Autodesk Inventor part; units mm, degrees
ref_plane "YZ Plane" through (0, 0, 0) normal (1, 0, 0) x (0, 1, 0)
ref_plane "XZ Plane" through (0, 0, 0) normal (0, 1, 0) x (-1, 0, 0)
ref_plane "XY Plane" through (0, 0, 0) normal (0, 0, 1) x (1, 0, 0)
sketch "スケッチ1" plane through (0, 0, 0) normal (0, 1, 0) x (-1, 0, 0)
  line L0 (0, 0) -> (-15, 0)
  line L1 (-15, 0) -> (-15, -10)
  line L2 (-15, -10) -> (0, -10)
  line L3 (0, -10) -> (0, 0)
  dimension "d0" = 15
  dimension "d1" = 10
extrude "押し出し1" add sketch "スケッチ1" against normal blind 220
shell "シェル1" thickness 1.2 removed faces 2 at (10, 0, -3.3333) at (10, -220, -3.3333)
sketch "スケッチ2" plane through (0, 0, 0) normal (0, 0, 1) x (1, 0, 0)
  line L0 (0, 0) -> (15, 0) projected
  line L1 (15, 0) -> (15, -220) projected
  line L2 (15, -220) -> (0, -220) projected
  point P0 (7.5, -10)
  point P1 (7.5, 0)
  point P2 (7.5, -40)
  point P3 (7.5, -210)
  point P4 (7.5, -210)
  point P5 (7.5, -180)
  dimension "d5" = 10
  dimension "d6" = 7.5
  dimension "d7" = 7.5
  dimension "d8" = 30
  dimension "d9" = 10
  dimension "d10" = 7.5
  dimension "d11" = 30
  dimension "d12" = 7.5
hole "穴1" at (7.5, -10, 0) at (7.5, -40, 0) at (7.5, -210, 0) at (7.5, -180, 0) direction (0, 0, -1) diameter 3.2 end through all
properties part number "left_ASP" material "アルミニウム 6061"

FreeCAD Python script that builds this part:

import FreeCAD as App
import Part
import Sketcher
from FreeCAD import Vector
Q = App.Units.Quantity


def faces_at(feature, points):
    """Names of the faces that lie closest to the given points."""
    faces = feature.Shape.Faces
    near = lambda p: min(range(len(faces)), key=lambda i: faces[i].distToShape(Part.Vertex(*p))[0])
    return sorted({f"Face{near(p) + 1}" for p in points})


def add_polygon(sketch, points):
    """Adds a closed chain of lines whose ends are joined by coincident constraints."""
    first, n = sketch.GeometryCount, len(points)
    for a, b in zip(points, points[1:] + points[:1]):
        sketch.addGeometry(Part.LineSegment(App.Vector(*a, 0), App.Vector(*b, 0)), False)
    for i in range(n):
        sketch.addConstraint(Sketcher.Constraint("Coincident", first + i, 2, first + (i + 1) % n, 1))

doc = App.newDocument("Part")
body = doc.addObject("PartDesign::Body", "Body")

sketch1 = body.newObject("Sketcher::SketchObject", "Sketch")
sketch1.AttachmentSupport = (doc.getObject("XZ_Plane"), [""])
sketch1.MapMode = "FlatFace"
add_polygon(sketch1, [(0, -10), (0, 0), (15, 0), (15, -10)])
sketch1.addConstraint(Sketcher.Constraint("Vertical", 0))
sketch1.addConstraint(Sketcher.Constraint("Horizontal", 1))
sketch1.addConstraint(Sketcher.Constraint("Vertical", 2))
sketch1.addConstraint(Sketcher.Constraint("Horizontal", 3))
sketch1.addConstraint(Sketcher.Constraint("Coincident", 0, 2, -1, 1))
sketch1.addConstraint(Sketcher.Constraint("DistanceX", 1, 1, 1, 2, Q("15 mm")))
sketch1.addConstraint(Sketcher.Constraint("DistanceY", 0, 1, 0, 2, Q("10 mm")))
pad1 = body.newObject("PartDesign::Pad", "Pad")
pad1.Profile = sketch1
pad1.Length = 220
doc.recompute()

thickness = body.newObject("PartDesign::Thickness", "Thickness")
thickness.Base = (pad1, faces_at(pad1, [(10, 0, -3.333), (10, -220, -3.333)]))
thickness.Value = 1.2
thickness.Reversed = True
thickness.Join = "Intersection"

sketch2 = body.newObject("Sketcher::SketchObject", "Sketch001")
sketch2.AttachmentSupport = (doc.getObject("XY_Plane"), [""])
sketch2.MapMode = "FlatFace"
sketch2.addGeometry(Part.Circle(Vector(7.5, -10, 0), Vector(0, 0, 1), 1.6), False)
sketch2.addGeometry(Part.Circle(Vector(7.5, -40, 0), Vector(0, 0, 1), 1.6), False)
sketch2.addGeometry(Part.Circle(Vector(7.5, -210, 0), Vector(0, 0, 1), 1.6), False)
sketch2.addGeometry(Part.Circle(Vector(7.5, -180, 0), Vector(0, 0, 1), 1.6), False)
sketch2.addConstraint(Sketcher.Constraint("Equal", 0, 1))
sketch2.addConstraint(Sketcher.Constraint("Equal", 1, 2))
sketch2.addConstraint(Sketcher.Constraint("Equal", 2, 3))
sketch2.addConstraint(Sketcher.Constraint("Vertical", 0, 3, 1, 3))
sketch2.addConstraint(Sketcher.Constraint("Vertical", 1, 3, 2, 3))
sketch2.addConstraint(Sketcher.Constraint("Vertical", 2, 3, 3, 3))
sketch2.addConstraint(Sketcher.Constraint("Diameter", 0, Q("3.2 mm")))
sketch2.addConstraint(Sketcher.Constraint("DistanceY", 0, 3, -1, 1, Q("10 mm")))
sketch2.addConstraint(Sketcher.Constraint("DistanceY", 1, 3, -1, 1, Q("40 mm")))
sketch2.addConstraint(Sketcher.Constraint("DistanceY", 2, 3, -1, 1, Q("210 mm")))
sketch2.addConstraint(Sketcher.Constraint("DistanceY", 3, 3, -1, 1, Q("180 mm")))
sketch2.addConstraint(Sketcher.Constraint("DistanceX", -1, 1, 0, 3, Q("7.5 mm")))
doc.recompute()
hole = body.newObject("PartDesign::Hole", "Hole")
hole.Profile = sketch2
hole.ThreadType = "None"
hole.Diameter = 3.2
hole.DepthType = "ThroughAll"

doc.recompute()
